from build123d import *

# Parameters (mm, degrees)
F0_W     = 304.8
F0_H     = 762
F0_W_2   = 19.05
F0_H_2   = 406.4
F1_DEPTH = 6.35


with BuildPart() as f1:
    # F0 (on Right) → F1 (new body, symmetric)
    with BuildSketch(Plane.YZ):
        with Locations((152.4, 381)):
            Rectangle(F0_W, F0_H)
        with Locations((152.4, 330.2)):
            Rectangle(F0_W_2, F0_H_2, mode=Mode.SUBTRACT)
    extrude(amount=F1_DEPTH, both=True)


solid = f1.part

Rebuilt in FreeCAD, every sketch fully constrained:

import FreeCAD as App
import Part
import Sketcher

V = App.Vector
Q = App.Units.Quantity


def add_polygon(sketch, points):
    """Adds a closed chain of lines whose ends are joined by coincident constraints."""
    first, n = sketch.GeometryCount, len(points)
    for a, b in zip(points, points[1:] + points[:1]):
        sketch.addGeometry(Part.LineSegment(App.Vector(*a, 0), App.Vector(*b, 0)), False)
    for i in range(n):
        sketch.addConstraint(Sketcher.Constraint("Coincident", first + i, 2, first + (i + 1) % n, 1))

doc = App.newDocument("Part")
body = doc.addObject("PartDesign::Body", "Body")

sketch1 = body.newObject("Sketcher::SketchObject", "Sketch")
sketch1.AttachmentSupport = (doc.getObject("YZ_Plane"), [""])
sketch1.MapMode = "FlatFace"
add_polygon(sketch1, [(0, 762), (0, 0), (304.8, 0), (304.8, 762)])
add_polygon(sketch1, [(161.925, 127), (142.875, 127), (142.875, 533.4), (161.925, 533.4)])
sketch1.addConstraint(Sketcher.Constraint("Vertical", 0))
sketch1.addConstraint(Sketcher.Constraint("Horizontal", 1))
sketch1.addConstraint(Sketcher.Constraint("Vertical", 2))
sketch1.addConstraint(Sketcher.Constraint("Horizontal", 3))
sketch1.addConstraint(Sketcher.Constraint("Horizontal", 4))
sketch1.addConstraint(Sketcher.Constraint("Vertical", 5))
sketch1.addConstraint(Sketcher.Constraint("Horizontal", 6))
sketch1.addConstraint(Sketcher.Constraint("Vertical", 7))
sketch1.addConstraint(Sketcher.Constraint("Coincident", 0, 2, -1, 1))
sketch1.addConstraint(Sketcher.Constraint("DistanceX", 1, 1, 1, 2, Q("12 in")))
sketch1.addConstraint(Sketcher.Constraint("DistanceY", 0, 2, 0, 1, Q("30 in")))
sketch1.addConstraint(Sketcher.Constraint("DistanceY", 5, 1, 5, 2, Q("16 in")))
sketch1.addConstraint(Sketcher.Constraint("DistanceY", -1, 1, 4, 2, Q("5 in")))
sketch1.addConstraint(Sketcher.Constraint("DistanceX", 4, 2, 4, 1, Q("0.75 in")))
sketch1.addConstraint(Sketcher.Constraint("DistanceX", -1, 1, 4, 2, Q("5.625 in")))
pad1 = body.newObject("PartDesign::Pad", "Pad")
pad1.Profile = sketch1
pad1.Length = Q("0.5 in")
pad1.Midplane = True

doc.recompute()
